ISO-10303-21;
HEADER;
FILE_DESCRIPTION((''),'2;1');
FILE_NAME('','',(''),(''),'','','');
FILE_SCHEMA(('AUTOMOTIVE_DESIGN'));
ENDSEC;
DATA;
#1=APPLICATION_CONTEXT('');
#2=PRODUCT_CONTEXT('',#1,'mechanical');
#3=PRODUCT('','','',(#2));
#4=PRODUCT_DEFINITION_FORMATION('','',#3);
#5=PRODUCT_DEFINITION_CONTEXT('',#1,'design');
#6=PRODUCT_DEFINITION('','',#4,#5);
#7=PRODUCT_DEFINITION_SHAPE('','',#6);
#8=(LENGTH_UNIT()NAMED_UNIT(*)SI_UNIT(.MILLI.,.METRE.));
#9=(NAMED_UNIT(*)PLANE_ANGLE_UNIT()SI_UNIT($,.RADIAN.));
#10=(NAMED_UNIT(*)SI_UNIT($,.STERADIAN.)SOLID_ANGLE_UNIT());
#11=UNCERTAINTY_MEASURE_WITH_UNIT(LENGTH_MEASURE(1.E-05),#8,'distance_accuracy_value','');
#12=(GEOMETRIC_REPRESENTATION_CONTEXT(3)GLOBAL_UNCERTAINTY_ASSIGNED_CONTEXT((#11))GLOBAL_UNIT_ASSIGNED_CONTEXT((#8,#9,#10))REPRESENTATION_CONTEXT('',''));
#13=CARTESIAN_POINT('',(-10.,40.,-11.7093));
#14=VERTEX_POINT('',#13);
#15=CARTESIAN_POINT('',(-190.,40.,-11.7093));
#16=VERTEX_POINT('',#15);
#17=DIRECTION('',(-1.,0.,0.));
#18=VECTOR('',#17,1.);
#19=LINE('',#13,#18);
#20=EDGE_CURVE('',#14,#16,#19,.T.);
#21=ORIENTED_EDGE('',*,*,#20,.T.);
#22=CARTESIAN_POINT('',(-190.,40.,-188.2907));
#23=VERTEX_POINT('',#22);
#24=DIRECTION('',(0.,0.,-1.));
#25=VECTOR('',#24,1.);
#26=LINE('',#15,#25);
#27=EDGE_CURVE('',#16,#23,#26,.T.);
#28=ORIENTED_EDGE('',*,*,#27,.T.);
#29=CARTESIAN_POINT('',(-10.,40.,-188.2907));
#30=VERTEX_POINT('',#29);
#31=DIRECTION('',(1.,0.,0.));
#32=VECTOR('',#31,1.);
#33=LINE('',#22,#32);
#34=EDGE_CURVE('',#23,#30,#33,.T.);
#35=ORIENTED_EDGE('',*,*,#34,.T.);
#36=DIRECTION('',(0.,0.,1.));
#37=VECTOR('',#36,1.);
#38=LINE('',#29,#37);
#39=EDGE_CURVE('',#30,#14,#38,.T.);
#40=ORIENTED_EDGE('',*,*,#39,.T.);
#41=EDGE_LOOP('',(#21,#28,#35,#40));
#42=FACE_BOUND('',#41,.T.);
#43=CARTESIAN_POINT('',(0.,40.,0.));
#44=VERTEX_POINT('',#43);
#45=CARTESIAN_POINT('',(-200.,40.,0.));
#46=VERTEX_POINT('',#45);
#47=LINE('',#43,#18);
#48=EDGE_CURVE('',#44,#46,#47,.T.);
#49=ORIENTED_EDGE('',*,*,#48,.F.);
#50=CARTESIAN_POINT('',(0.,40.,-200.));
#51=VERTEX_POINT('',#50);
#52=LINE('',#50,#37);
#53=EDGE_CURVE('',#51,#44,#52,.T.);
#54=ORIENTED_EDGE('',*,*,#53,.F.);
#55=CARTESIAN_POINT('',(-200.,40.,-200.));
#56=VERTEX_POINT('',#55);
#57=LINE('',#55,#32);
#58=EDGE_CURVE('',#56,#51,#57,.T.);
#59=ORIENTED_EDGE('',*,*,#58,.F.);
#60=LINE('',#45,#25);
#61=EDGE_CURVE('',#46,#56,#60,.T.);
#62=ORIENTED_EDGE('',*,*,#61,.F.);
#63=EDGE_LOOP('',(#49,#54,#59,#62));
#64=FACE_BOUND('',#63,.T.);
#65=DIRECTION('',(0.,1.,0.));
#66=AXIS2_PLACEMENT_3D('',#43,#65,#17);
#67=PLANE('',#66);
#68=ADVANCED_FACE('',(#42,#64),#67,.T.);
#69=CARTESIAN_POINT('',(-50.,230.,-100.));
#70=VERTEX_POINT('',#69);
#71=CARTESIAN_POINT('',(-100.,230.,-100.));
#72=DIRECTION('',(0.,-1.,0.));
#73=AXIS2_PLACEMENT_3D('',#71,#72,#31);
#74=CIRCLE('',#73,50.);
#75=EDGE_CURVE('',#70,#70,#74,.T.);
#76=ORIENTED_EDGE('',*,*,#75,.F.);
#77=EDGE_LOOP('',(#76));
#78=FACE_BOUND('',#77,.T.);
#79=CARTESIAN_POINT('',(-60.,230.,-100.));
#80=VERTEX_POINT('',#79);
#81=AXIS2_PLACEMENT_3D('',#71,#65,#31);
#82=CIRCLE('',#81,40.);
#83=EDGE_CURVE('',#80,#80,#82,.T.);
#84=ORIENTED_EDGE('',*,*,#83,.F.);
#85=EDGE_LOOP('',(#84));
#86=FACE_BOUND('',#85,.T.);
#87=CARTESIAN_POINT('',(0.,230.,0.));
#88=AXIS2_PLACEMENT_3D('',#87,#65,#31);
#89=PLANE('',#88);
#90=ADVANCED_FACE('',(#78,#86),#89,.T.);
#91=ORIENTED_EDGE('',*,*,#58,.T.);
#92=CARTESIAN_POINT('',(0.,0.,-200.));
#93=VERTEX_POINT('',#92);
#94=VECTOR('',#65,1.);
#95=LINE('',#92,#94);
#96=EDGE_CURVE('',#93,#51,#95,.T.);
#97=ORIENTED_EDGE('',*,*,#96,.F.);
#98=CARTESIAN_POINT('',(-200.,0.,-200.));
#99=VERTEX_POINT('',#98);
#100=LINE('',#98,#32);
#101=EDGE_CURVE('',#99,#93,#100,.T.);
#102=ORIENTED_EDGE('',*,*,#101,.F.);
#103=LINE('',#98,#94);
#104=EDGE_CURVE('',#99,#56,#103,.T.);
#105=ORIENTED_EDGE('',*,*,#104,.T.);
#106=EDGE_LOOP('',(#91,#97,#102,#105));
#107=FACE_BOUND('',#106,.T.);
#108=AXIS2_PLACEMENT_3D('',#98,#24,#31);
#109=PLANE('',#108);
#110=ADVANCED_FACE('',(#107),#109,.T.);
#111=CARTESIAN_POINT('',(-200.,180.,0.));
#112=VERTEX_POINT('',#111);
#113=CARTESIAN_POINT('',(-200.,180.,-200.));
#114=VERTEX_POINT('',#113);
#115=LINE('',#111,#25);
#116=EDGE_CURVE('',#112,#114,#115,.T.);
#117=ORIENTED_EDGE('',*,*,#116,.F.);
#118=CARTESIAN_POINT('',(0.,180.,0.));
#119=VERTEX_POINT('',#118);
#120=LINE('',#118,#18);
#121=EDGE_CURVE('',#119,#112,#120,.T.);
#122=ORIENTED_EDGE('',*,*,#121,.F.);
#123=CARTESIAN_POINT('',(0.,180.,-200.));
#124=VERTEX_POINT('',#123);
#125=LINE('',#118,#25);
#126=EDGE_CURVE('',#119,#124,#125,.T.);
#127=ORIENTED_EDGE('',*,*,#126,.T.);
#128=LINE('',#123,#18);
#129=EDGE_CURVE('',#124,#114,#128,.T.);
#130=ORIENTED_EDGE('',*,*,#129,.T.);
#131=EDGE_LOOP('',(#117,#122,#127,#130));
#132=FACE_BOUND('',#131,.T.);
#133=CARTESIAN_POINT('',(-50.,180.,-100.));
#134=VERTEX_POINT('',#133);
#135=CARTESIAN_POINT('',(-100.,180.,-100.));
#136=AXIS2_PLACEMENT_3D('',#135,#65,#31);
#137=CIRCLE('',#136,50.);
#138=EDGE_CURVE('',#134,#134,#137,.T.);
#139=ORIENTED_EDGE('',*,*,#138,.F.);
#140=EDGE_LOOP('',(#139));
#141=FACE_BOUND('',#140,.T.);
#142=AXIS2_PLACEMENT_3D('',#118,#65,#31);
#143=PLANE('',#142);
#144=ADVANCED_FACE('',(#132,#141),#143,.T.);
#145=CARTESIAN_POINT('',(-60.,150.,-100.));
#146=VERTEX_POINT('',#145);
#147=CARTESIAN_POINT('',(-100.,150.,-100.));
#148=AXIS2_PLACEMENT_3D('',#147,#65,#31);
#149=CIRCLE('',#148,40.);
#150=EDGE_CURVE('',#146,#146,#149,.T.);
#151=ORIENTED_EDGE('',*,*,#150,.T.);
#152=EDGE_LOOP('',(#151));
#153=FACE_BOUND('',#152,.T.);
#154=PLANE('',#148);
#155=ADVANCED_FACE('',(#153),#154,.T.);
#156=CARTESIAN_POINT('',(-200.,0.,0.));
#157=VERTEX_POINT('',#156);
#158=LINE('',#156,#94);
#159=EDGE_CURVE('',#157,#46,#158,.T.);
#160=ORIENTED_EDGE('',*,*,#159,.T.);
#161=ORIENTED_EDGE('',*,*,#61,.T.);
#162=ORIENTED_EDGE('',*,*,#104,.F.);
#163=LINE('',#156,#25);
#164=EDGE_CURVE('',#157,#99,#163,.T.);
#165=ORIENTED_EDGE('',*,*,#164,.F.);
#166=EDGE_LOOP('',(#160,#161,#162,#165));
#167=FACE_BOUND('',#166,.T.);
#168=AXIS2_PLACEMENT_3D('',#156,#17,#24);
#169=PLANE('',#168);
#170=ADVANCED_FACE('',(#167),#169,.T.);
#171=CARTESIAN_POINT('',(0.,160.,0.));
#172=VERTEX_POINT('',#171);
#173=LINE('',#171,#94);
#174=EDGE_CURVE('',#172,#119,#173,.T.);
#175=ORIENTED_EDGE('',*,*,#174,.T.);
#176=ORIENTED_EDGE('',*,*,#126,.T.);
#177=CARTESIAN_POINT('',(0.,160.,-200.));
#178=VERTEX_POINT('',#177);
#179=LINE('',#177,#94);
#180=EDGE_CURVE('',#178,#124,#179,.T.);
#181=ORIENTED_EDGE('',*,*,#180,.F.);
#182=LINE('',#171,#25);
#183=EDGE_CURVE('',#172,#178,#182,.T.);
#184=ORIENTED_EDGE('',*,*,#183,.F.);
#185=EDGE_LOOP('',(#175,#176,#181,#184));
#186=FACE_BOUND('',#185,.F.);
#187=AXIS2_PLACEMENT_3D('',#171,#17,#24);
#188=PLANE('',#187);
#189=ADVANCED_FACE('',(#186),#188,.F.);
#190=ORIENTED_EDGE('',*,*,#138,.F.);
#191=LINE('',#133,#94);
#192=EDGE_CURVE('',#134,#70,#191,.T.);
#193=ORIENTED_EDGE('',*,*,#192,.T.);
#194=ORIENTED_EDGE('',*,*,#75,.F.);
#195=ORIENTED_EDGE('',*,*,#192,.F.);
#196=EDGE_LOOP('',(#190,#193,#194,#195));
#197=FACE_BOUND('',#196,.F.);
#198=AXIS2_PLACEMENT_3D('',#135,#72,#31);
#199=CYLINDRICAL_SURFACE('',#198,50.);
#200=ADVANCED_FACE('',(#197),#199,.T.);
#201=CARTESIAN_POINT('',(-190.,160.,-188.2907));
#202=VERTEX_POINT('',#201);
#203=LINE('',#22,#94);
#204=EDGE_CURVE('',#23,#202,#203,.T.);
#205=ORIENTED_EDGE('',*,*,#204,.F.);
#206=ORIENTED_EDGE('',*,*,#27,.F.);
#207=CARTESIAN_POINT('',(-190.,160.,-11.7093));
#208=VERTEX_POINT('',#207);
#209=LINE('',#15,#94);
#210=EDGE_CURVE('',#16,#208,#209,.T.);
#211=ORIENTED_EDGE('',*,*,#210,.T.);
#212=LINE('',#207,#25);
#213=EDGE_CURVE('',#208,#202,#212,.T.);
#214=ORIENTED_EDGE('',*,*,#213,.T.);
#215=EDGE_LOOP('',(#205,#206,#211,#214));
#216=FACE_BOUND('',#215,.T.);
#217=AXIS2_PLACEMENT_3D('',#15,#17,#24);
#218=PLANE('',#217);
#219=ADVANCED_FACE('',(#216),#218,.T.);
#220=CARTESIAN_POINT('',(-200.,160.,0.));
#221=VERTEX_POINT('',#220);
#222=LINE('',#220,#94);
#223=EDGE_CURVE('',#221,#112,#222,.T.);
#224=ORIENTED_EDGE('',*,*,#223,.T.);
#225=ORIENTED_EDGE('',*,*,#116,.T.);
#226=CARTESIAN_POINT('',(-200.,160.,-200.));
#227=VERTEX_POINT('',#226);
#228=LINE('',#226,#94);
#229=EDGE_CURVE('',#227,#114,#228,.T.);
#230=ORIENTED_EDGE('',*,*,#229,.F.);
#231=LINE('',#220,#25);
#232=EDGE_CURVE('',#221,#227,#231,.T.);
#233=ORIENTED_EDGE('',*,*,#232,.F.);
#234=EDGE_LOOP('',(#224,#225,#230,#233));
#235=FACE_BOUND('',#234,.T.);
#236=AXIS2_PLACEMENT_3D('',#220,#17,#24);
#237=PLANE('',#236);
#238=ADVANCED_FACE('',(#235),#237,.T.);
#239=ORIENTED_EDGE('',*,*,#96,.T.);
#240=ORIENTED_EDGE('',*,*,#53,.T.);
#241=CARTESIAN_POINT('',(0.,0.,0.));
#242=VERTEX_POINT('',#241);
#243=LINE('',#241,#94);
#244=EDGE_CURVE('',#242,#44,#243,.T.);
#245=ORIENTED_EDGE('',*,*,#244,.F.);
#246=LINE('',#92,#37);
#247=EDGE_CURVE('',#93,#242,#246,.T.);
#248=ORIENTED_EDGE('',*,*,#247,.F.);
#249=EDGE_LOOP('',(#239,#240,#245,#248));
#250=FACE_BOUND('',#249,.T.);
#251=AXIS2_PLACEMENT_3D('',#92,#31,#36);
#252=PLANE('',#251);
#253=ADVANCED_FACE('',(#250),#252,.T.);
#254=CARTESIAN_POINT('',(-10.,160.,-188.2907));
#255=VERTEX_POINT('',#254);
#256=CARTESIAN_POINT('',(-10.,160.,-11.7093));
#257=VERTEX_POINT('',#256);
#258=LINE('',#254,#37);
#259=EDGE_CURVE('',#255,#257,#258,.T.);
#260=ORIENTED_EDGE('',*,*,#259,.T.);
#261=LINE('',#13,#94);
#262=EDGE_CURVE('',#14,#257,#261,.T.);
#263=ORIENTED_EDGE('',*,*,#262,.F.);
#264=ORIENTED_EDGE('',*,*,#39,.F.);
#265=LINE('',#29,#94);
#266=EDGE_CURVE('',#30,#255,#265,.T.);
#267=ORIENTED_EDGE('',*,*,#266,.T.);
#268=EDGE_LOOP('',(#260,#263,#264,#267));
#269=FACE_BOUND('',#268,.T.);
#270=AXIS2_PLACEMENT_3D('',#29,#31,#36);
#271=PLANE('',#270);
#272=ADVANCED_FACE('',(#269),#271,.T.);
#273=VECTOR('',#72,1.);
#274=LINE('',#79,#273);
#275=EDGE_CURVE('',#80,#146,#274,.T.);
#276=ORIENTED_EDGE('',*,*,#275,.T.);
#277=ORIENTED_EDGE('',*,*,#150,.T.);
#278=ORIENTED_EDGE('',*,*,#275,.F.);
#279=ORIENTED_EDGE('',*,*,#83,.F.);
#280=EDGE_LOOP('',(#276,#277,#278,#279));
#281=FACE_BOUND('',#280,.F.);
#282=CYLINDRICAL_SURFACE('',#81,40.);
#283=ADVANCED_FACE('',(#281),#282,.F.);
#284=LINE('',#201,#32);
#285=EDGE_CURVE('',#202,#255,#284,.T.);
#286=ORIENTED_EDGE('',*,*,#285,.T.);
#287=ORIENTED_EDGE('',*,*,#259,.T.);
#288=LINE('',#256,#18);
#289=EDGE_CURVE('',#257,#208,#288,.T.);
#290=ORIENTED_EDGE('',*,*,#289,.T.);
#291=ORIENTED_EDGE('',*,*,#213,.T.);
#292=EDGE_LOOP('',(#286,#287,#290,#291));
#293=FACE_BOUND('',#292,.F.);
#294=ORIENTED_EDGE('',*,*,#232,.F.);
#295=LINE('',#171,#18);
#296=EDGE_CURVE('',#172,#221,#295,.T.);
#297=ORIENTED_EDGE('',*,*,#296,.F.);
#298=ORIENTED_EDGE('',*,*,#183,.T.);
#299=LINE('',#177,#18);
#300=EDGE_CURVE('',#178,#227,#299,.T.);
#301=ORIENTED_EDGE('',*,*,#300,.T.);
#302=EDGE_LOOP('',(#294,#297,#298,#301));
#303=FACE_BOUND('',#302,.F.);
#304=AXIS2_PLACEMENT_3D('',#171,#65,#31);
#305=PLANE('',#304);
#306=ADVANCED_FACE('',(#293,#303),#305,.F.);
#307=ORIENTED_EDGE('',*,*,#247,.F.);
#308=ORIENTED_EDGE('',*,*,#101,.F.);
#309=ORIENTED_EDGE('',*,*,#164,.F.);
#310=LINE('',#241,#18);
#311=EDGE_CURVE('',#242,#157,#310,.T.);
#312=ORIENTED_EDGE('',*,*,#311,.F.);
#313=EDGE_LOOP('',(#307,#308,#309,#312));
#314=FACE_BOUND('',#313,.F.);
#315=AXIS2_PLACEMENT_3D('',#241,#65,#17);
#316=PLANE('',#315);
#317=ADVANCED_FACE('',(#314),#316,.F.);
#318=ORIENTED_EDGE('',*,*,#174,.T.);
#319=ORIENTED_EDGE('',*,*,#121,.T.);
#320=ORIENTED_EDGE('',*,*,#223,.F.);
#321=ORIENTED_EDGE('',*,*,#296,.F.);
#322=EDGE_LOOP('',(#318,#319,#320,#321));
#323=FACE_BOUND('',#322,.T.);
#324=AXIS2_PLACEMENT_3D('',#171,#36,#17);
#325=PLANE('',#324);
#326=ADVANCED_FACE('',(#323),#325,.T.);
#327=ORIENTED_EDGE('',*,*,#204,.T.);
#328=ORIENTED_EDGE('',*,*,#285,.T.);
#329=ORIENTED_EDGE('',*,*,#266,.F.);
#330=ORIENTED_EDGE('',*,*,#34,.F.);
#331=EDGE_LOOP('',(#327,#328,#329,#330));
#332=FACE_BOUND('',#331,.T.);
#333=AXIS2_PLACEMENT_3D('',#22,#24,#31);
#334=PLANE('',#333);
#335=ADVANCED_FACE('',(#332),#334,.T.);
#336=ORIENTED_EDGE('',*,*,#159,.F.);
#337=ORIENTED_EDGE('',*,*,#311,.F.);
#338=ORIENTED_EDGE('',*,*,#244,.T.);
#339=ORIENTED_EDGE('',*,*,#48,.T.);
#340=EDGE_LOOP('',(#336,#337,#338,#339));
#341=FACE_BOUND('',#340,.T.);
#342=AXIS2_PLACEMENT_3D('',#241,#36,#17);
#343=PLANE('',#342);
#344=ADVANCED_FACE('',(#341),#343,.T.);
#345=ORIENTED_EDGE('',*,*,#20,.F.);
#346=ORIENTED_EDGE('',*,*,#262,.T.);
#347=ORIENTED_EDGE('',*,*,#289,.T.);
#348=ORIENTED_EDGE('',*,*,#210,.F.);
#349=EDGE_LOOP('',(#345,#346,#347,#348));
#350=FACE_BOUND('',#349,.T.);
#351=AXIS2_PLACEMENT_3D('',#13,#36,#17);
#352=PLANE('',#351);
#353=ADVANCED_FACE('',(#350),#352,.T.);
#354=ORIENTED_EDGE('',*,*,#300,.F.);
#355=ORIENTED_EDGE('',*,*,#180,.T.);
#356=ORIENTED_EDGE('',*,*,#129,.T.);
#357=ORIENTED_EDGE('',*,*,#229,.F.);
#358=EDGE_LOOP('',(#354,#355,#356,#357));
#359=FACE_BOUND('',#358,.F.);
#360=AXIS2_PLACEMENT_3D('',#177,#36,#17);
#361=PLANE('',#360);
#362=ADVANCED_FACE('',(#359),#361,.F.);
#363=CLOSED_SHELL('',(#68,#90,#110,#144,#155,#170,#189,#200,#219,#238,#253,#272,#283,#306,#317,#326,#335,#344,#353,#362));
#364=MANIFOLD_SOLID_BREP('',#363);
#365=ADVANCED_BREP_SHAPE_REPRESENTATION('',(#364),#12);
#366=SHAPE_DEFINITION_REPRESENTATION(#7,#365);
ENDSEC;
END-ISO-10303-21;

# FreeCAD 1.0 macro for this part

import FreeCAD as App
import Part
import Sketcher

V = App.Vector
Q = App.Units.Quantity


def add_polygon(sketch, points):
    """Adds a closed chain of lines whose ends are joined by coincident constraints."""
    first, n = sketch.GeometryCount, len(points)
    for a, b in zip(points, points[1:] + points[:1]):
        sketch.addGeometry(Part.LineSegment(App.Vector(*a, 0), App.Vector(*b, 0)), False)
    for i in range(n):
        sketch.addConstraint(Sketcher.Constraint("Coincident", first + i, 2, first + (i + 1) % n, 1))

doc = App.newDocument("Part")
body = doc.addObject("PartDesign::Body", "Body")

sketch1 = body.newObject("Sketcher::SketchObject", "Sketch")
sketch1.AttachmentSupport = (doc.getObject("XZ_Plane"), [""])
sketch1.MapMode = "FlatFace"
add_polygon(sketch1, [(-200, 0), (0, 0), (0, -200), (-200, -200)])
sketch1.addConstraint([
    Sketcher.Constraint("Horizontal", 0),
    Sketcher.Constraint("Vertical", 1),
    Sketcher.Constraint("Horizontal", 2),
    Sketcher.Constraint("Vertical", 3),
    Sketcher.Constraint("Coincident", 0, 2, -1, 1),
    Sketcher.Constraint("Equal", 2, 1),
    Sketcher.Constraint("DistanceX", 0, 1, 0, 2, Q("200 mm")),
])
pad1 = body.newObject("PartDesign::Pad", "Pad")
pad1.Profile = sketch1
pad1.Length = 40
pad1.Reversed = True

sketch2 = body.newObject("Sketcher::SketchObject", "Sketch001")
sketch2.AttachmentSupport = (doc.getObject("XZ_Plane"), [""])
sketch2.MapMode = "FlatFace"
sketch2.AttachmentOffset = App.Placement(V(0, 0, -40), App.Rotation())
add_polygon(sketch2, [(-190, -12), (-10, -12), (-10, -188), (-190, -188)])
sketch2.addConstraint([
    Sketcher.Constraint("Horizontal", 0),
    Sketcher.Constraint("Vertical", 1),
    Sketcher.Constraint("Horizontal", 2),
    Sketcher.Constraint("Vertical", 3),
    Sketcher.Constraint("DistanceX", 0, 1, 0, 2, Q("180 mm")),
    Sketcher.Constraint("DistanceX", 0, 2, -1, 1, Q("10 mm")),
    Sketcher.Constraint("DistanceY", 1, 2, 1, 1, Q("176.5814 mm")),
    Sketcher.Constraint("DistanceY", 0, 2, -1, 1, Q("11.7093 mm")),
])
pad2 = body.newObject("PartDesign::Pad", "Pad001")
pad2.Profile = sketch2
pad2.Length = 120
pad2.Reversed = True

sketch3 = body.newObject("Sketcher::SketchObject", "Sketch002")
sketch3.AttachmentSupport = (doc.getObject("XZ_Plane"), [""])
sketch3.MapMode = "FlatFace"
sketch3.AttachmentOffset = App.Placement(V(0, 0, -160), App.Rotation())
add_polygon(sketch3, [(-200, 0), (0, 0), (0, -200), (-200, -200)])
sketch3.addConstraint([
    Sketcher.Constraint("Horizontal", 0),
    Sketcher.Constraint("Vertical", 1),
    Sketcher.Constraint("Horizontal", 2),
    Sketcher.Constraint("Vertical", 3),
    Sketcher.Constraint("Coincident", 0, 2, -1, 1),
    Sketcher.Constraint("Equal", 2, 1),
    Sketcher.Constraint("DistanceX", 0, 1, 0, 2, Q("200 mm")),
])
pad3 = body.newObject("PartDesign::Pad", "Pad002")
pad3.Profile = sketch3
pad3.Length = 20
pad3.Reversed = True

sketch4 = body.newObject("Sketcher::SketchObject", "Sketch003")
sketch4.AttachmentSupport = (doc.getObject("XZ_Plane"), [""])
sketch4.MapMode = "FlatFace"
sketch4.AttachmentOffset = App.Placement(V(0, 0, -180), App.Rotation())
sketch4.addGeometry(Part.Circle(V(-100, -100, 0), V(0, 0, 1), 50), False)
sketch4.addConstraint([
    Sketcher.Constraint("Diameter", 0, Q("100 mm")),
    Sketcher.Constraint("DistanceX", 0, 3, -1, 1, Q("100 mm")),
    Sketcher.Constraint("DistanceY", 0, 3, -1, 1, Q("100 mm")),
])
pad4 = body.newObject("PartDesign::Pad", "Pad003")
pad4.Profile = sketch4
pad4.Length = 50
pad4.Reversed = True

sketch5 = body.newObject("Sketcher::SketchObject", "Sketch004")
sketch5.AttachmentSupport = (doc.getObject("XZ_Plane"), [""])
sketch5.MapMode = "FlatFace"
sketch5.AttachmentOffset = App.Placement(V(0, 0, -230), App.Rotation())
sketch5.addGeometry(Part.Circle(V(-100, -100, 0), V(0, 0, 1), 40), False)
sketch5.addConstraint([
    Sketcher.Constraint("Diameter", 0, Q("80 mm")),
    Sketcher.Constraint("DistanceX", 0, 3, -1, 1, Q("100 mm")),
    Sketcher.Constraint("DistanceY", 0, 3, -1, 1, Q("100 mm")),
])
pocket1 = body.newObject("PartDesign::Pocket", "Pocket")
pocket1.Profile = sketch5
pocket1.Length = 80
pocket1.Reversed = True

doc.recompute()
